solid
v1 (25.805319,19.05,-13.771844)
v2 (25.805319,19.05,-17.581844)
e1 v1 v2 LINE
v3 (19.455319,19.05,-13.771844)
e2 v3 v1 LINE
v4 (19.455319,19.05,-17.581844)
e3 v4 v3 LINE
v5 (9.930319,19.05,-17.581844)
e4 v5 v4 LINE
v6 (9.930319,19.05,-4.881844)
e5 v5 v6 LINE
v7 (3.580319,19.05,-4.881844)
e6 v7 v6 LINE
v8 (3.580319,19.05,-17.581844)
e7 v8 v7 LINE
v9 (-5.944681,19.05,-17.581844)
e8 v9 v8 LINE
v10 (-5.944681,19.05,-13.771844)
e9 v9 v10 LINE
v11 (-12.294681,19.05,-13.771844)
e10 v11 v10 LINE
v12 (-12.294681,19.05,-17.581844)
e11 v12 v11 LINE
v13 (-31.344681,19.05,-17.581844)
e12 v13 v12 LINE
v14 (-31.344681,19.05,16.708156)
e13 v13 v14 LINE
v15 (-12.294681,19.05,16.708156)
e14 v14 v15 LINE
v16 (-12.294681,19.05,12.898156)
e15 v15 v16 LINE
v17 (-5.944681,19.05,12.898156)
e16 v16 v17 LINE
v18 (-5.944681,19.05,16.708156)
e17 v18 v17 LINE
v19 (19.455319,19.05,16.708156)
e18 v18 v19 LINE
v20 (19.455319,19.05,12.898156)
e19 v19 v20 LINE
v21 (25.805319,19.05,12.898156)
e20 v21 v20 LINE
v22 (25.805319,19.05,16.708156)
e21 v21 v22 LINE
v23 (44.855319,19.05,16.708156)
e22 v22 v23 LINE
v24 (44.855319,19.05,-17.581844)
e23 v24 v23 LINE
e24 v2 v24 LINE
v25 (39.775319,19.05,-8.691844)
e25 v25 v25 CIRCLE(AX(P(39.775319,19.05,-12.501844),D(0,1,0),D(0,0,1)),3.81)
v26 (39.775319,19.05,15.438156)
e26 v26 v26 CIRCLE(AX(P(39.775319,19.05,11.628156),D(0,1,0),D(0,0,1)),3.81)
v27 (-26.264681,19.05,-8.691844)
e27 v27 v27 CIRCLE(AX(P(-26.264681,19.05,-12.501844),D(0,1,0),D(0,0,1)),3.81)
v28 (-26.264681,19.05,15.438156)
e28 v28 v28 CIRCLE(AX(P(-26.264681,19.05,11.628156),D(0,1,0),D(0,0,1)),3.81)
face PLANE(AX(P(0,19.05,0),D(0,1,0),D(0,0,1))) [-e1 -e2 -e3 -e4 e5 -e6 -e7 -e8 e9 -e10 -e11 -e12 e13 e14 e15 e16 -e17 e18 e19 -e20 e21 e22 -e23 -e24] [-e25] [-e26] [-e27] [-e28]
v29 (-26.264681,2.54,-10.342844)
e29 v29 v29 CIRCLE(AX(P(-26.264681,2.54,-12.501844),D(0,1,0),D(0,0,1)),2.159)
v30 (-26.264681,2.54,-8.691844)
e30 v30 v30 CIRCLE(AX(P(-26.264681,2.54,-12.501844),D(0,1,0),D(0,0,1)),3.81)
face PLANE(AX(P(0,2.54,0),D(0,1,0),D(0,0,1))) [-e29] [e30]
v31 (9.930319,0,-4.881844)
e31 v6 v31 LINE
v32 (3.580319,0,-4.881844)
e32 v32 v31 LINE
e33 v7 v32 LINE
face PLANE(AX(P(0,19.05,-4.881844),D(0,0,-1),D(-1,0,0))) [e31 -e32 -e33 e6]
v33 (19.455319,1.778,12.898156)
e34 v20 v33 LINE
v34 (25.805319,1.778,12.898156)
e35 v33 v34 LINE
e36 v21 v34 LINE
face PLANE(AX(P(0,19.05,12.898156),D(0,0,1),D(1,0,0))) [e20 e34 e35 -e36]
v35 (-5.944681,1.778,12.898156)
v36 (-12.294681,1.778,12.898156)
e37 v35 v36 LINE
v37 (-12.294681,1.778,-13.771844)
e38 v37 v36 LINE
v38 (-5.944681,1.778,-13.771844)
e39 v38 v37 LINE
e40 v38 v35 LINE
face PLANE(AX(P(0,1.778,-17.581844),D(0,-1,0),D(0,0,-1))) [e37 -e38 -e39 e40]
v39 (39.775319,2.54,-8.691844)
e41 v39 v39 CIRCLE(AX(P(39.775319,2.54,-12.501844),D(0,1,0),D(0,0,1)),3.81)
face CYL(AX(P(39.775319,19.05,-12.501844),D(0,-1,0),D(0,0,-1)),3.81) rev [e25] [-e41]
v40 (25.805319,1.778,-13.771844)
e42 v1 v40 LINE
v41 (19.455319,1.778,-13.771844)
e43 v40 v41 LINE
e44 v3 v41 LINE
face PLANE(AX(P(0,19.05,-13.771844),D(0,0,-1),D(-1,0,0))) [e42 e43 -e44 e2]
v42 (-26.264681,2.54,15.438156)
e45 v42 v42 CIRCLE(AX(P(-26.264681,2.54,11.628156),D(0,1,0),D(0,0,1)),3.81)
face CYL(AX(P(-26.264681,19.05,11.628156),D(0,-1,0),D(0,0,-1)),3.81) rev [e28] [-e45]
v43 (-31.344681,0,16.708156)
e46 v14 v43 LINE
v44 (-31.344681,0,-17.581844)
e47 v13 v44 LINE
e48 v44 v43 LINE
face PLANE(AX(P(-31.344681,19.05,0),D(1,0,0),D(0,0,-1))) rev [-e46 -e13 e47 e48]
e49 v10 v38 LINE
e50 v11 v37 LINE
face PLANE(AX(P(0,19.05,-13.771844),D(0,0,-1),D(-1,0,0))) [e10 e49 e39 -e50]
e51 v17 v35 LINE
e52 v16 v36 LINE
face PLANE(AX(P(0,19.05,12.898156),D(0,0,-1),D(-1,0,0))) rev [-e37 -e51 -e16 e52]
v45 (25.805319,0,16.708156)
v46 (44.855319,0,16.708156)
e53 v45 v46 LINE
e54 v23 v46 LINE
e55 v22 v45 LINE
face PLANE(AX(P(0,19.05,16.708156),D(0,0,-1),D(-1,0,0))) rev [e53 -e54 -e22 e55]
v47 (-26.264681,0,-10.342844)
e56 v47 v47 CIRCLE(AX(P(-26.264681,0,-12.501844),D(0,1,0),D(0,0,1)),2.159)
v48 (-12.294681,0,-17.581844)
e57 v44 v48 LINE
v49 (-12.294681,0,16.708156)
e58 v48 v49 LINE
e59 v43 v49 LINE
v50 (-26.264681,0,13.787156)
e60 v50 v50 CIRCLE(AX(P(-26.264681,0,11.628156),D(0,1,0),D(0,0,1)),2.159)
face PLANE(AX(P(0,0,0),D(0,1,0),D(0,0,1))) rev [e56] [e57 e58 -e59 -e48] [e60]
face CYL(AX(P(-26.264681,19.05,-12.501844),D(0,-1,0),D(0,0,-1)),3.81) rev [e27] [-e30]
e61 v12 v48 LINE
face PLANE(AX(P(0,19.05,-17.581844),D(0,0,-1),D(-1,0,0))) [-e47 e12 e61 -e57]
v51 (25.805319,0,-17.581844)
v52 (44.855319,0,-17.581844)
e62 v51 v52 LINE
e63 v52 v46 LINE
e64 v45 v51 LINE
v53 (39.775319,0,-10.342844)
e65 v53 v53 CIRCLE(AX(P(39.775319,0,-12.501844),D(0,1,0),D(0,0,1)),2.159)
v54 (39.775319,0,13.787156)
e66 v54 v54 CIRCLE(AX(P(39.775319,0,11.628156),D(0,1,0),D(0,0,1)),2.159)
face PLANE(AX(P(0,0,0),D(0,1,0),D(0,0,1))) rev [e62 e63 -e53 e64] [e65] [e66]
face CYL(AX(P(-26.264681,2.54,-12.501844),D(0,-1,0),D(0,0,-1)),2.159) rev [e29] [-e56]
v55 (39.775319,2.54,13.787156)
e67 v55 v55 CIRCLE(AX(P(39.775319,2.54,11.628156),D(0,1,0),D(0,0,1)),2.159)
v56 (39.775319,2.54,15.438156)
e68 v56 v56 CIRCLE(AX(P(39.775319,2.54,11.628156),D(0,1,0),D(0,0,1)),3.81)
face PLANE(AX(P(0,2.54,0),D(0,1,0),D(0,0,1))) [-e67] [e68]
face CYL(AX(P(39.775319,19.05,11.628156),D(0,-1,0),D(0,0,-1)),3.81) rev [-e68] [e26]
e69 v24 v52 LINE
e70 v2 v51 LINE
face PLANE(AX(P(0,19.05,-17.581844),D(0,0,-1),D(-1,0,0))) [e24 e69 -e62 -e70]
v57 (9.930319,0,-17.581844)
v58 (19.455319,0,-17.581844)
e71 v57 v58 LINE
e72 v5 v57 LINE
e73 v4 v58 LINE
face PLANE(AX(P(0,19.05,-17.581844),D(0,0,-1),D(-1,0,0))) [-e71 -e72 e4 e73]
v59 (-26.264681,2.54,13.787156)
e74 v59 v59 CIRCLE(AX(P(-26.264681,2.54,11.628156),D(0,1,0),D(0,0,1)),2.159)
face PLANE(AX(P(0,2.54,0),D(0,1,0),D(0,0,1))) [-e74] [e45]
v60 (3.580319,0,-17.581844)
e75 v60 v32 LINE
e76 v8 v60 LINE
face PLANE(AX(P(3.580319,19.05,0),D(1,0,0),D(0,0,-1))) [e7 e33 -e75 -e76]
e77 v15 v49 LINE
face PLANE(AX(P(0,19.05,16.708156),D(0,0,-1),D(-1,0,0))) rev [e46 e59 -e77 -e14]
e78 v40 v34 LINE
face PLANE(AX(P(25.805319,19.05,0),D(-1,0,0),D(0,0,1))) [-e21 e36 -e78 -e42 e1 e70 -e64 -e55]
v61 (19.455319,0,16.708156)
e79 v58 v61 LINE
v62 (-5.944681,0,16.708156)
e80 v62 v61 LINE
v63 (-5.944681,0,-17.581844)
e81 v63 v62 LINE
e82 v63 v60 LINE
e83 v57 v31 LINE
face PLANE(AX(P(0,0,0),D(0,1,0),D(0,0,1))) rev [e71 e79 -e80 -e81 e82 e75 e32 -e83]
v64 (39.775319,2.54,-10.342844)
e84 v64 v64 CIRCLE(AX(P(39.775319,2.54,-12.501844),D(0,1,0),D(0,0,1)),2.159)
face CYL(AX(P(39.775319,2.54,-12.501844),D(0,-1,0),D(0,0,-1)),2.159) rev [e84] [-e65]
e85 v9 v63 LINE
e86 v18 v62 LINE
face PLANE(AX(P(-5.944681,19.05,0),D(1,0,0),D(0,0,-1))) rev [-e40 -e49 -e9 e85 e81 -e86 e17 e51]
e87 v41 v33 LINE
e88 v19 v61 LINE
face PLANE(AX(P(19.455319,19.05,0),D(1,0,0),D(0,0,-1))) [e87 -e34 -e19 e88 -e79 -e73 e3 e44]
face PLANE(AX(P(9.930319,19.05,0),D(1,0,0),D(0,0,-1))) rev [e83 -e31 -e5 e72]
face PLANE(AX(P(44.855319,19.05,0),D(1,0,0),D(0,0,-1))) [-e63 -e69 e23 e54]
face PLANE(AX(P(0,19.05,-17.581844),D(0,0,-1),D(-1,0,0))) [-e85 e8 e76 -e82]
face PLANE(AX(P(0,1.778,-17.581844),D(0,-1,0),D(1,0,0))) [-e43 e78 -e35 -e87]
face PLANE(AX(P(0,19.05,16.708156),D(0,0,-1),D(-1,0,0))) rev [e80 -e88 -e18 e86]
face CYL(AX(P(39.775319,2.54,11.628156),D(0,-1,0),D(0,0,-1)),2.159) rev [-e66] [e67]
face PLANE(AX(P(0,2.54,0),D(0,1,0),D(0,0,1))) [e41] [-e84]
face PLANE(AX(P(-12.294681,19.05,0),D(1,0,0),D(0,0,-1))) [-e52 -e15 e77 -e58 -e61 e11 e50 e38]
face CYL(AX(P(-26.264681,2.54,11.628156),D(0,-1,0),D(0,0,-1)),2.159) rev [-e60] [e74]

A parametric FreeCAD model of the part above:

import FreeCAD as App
import Part
import Sketcher
Q = App.Units.Quantity


def add_polygon(sketch, points):
    """Adds a closed chain of lines whose ends are joined by coincident constraints."""
    first, n = sketch.GeometryCount, len(points)
    for a, b in zip(points, points[1:] + points[:1]):
        sketch.addGeometry(Part.LineSegment(App.Vector(*a, 0), App.Vector(*b, 0)), False)
    for i in range(n):
        sketch.addConstraint(Sketcher.Constraint("Coincident", first + i, 2, first + (i + 1) % n, 1))

doc = App.newDocument("Part")
body = doc.addObject("PartDesign::Body", "Body")

# Sketch on XZ plane
sketch1 = doc.addObject("Sketcher::SketchObject", "Sketch")
body.addObject(sketch1)
sketch1.AttachmentSupport = (doc.XZ_Plane, [""])
sketch1.MapMode = "FlatFace"
add_polygon(sketch1, [(-12.3, -17.6), (-31.3, -17.6), (-31.3, 16.7), (-12.3, 16.7), (-12.3, 12.9), (-5.9, 12.9), (-5.9, 16.7), (19.5, 16.7), (19.5, 12.9), (25.8, 12.9), (25.8, 16.7), (44.9, 16.7), (44.9, -17.6), (25.8, -17.6), (25.8, -13.8), (19.5, -13.8), (19.5, -17.6), (9.9, -17.6), (9.9, -4.9), (3.6, -4.9), (3.6, -17.6), (-5.9, -17.6), (-5.9, -13.8), (-12.3, -13.8)])  # lines 0-23
sketch1.addGeometry(Part.Circle(App.Vector(-26.3, 11.6, 0), App.Vector(0, 0, 1), 3.8), False)  # 24
sketch1.addGeometry(Part.Circle(App.Vector(39.8, 11.6, 0), App.Vector(0, 0, 1), 3.8), False)  # 25
sketch1.addGeometry(Part.Circle(App.Vector(-26.3, -12.5, 0), App.Vector(0, 0, 1), 3.8), False)  # 26
sketch1.addGeometry(Part.Circle(App.Vector(39.8, -12.5, 0), App.Vector(0, 0, 1), 3.8), False)  # 27
sketch1.addConstraint(Sketcher.Constraint("Horizontal", 0))
sketch1.addConstraint(Sketcher.Constraint("Vertical", 1))
sketch1.addConstraint(Sketcher.Constraint("Horizontal", 2))
sketch1.addConstraint(Sketcher.Constraint("Vertical", 3))
sketch1.addConstraint(Sketcher.Constraint("Horizontal", 4))
sketch1.addConstraint(Sketcher.Constraint("Vertical", 5))
sketch1.addConstraint(Sketcher.Constraint("Horizontal", 6))
sketch1.addConstraint(Sketcher.Constraint("Vertical", 7))
sketch1.addConstraint(Sketcher.Constraint("Horizontal", 8))
sketch1.addConstraint(Sketcher.Constraint("Vertical", 9))
sketch1.addConstraint(Sketcher.Constraint("Horizontal", 10))
sketch1.addConstraint(Sketcher.Constraint("Vertical", 11))
sketch1.addConstraint(Sketcher.Constraint("Horizontal", 12))
sketch1.addConstraint(Sketcher.Constraint("Vertical", 13))
sketch1.addConstraint(Sketcher.Constraint("Horizontal", 14))
sketch1.addConstraint(Sketcher.Constraint("Vertical", 15))
sketch1.addConstraint(Sketcher.Constraint("Horizontal", 16))
sketch1.addConstraint(Sketcher.Constraint("Vertical", 17))
sketch1.addConstraint(Sketcher.Constraint("Horizontal", 18))
sketch1.addConstraint(Sketcher.Constraint("Vertical", 19))
sketch1.addConstraint(Sketcher.Constraint("Horizontal", 20))
sketch1.addConstraint(Sketcher.Constraint("Vertical", 21))
sketch1.addConstraint(Sketcher.Constraint("Horizontal", 22))
sketch1.addConstraint(Sketcher.Constraint("Vertical", 23))
sketch1.addConstraint(Sketcher.Constraint("Equal", 24, 25))
sketch1.addConstraint(Sketcher.Constraint("Equal", 25, 26))
sketch1.addConstraint(Sketcher.Constraint("Equal", 26, 27))
sketch1.addConstraint(Sketcher.Constraint("Horizontal", 24, 3, 25, 3))
sketch1.addConstraint(Sketcher.Constraint("Horizontal", 26, 3, 27, 3))
sketch1.addConstraint(Sketcher.Constraint("Horizontal", 2, 2, 5, 2))
sketch1.addConstraint(Sketcher.Constraint("Horizontal", 4, 2, 7, 2))
sketch1.addConstraint(Sketcher.Constraint("Horizontal", 6, 2, 9, 2))
sketch1.addConstraint(Sketcher.Constraint("Horizontal", 0, 2, 11, 2))
sketch1.addConstraint(Sketcher.Constraint("Horizontal", 12, 2, 15, 2))
sketch1.addConstraint(Sketcher.Constraint("Horizontal", 16, 2, 19, 2))
sketch1.addConstraint(Sketcher.Constraint("Horizontal", 14, 2, 21, 2))
sketch1.addConstraint(Sketcher.Constraint("Vertical", 24, 3, 26, 3))
sketch1.addConstraint(Sketcher.Constraint("Vertical", 25, 3, 27, 3))
sketch1.addConstraint(Sketcher.Constraint("Vertical", 9, 2, 12, 2))
sketch1.addConstraint(Sketcher.Constraint("Vertical", 7, 2, 14, 2))
sketch1.addConstraint(Sketcher.Constraint("Vertical", 5, 2, 20, 2))
sketch1.addConstraint(Sketcher.Constraint("Vertical", 3, 2, 22, 2))
sketch1.addConstraint(Sketcher.Constraint("Equal", 4, 8))
sketch1.addConstraint(Sketcher.Constraint("Equal", 2, 10))
sketch1.addConstraint(Sketcher.Constraint("Equal", 14, 18))
sketch1.addConstraint(Sketcher.Constraint("Equal", 16, 20))
sketch1.addConstraint(Sketcher.Constraint("Equal", 9, 13))
sketch1.addConstraint(Sketcher.Constraint("Diameter", 24, Q("0.3 in")))
sketch1.addConstraint(Sketcher.Constraint("DistanceX", 6, 1, 6, 2, Q("1 in")))
sketch1.addConstraint(Sketcher.Constraint("DistanceY", 17, 1, 17, 2, Q("0.5 in")))
sketch1.addConstraint(Sketcher.Constraint("DistanceY", 26, 3, 3, 2, Q("1 in")))
sketch1.addConstraint(Sketcher.Constraint("DistanceX", 1, 2, 4, 2, Q("1 in")))
sketch1.addConstraint(Sketcher.Constraint("DistanceX", 0, 2, 0, 1, Q("0.75 in")))
sketch1.addConstraint(Sketcher.Constraint("DistanceY", 1, 1, 1, 2, Q("1.35 in")))
sketch1.addConstraint(Sketcher.Constraint("DistanceY", 3, 2, 3, 1, Q("0.15 in")))
sketch1.addConstraint(Sketcher.Constraint("DistanceX", 24, 3, 25, 3, Q("2.6 in")))
sketch1.addConstraint(Sketcher.Constraint("DistanceX", 0, 2, 26, 3, Q("0.2 in")))
sketch1.addConstraint(Sketcher.Constraint("DistanceY", 24, 3, 1, 2, Q("0.2 in")))
sketch1.addConstraint(Sketcher.Constraint("DistanceX", 24, 3, -1, 1, 26.264681))
sketch1.addConstraint(Sketcher.Constraint("DistanceY", -1, 1, 24, 3, 11.628156))
pad1 = doc.addObject("PartDesign::Pad", "Pad")
body.addObject(pad1)
pad1.Profile = sketch1
pad1.Length = Q("0.75 in")
pad1.Reversed = True

# Sketch on XZ plane
sketch2 = doc.addObject("Sketcher::SketchObject", "Sketch001")
body.addObject(sketch2)
sketch2.AttachmentSupport = (doc.XZ_Plane, [""])
sketch2.MapMode = "FlatFace"
sketch2.addGeometry(Part.Circle(App.Vector(-26.3, -12.5, 0), App.Vector(0, 0, 1), 3.8), False)
sketch2.addGeometry(Part.Circle(App.Vector(-26.3, -12.5, 0), App.Vector(0, 0, 1), 2.2), False)
sketch2.addGeometry(Part.Circle(App.Vector(-26.3, 11.6, 0), App.Vector(0, 0, 1), 3.8), False)
sketch2.addGeometry(Part.Circle(App.Vector(-26.3, 11.6, 0), App.Vector(0, 0, 1), 2.2), False)
sketch2.addGeometry(Part.Circle(App.Vector(39.8, -12.5, 0), App.Vector(0, 0, 1), 3.8), False)
sketch2.addGeometry(Part.Circle(App.Vector(39.8, -12.5, 0), App.Vector(0, 0, 1), 2.2), False)
sketch2.addGeometry(Part.Circle(App.Vector(39.8, 11.6, 0), App.Vector(0, 0, 1), 3.8), False)
sketch2.addGeometry(Part.Circle(App.Vector(39.8, 11.6, 0), App.Vector(0, 0, 1), 2.2), False)
sketch2.addConstraint(Sketcher.Constraint("Coincident", 1, 3, 0, 3))
sketch2.addConstraint(Sketcher.Constraint("Coincident", 3, 3, 2, 3))
sketch2.addConstraint(Sketcher.Constraint("Coincident", 5, 3, 4, 3))
sketch2.addConstraint(Sketcher.Constraint("Coincident", 7, 3, 6, 3))
sketch2.addConstraint(Sketcher.Constraint("Equal", 0, 2))
sketch2.addConstraint(Sketcher.Constraint("Equal", 1, 3))
sketch2.addConstraint(Sketcher.Constraint("Equal", 2, 4))
sketch2.addConstraint(Sketcher.Constraint("Equal", 3, 5))
sketch2.addConstraint(Sketcher.Constraint("Equal", 4, 6))
sketch2.addConstraint(Sketcher.Constraint("Equal", 5, 7))
sketch2.addConstraint(Sketcher.Constraint("Horizontal", 1, 3, 4, 3))
sketch2.addConstraint(Sketcher.Constraint("Horizontal", 3, 3, 6, 3))
sketch2.addConstraint(Sketcher.Constraint("Vertical", 1, 3, 2, 3))
sketch2.addConstraint(Sketcher.Constraint("Vertical", 5, 3, 6, 3))
sketch2.addConstraint(Sketcher.Constraint("Diameter", 0, Q("0.3 in")))
sketch2.addConstraint(Sketcher.Constraint("Diameter", 1, Q("0.17 in")))
sketch2.addConstraint(Sketcher.Constraint("DistanceX", 0, 3, 4, 3, Q("2.6 in")))
sketch2.addConstraint(Sketcher.Constraint("DistanceY", 0, 3, 2, 3, Q("0.95 in")))
sketch2.addConstraint(Sketcher.Constraint("DistanceX", 0, 3, -1, 1, 26.264681))
sketch2.addConstraint(Sketcher.Constraint("DistanceY", 0, 3, -1, 1, 12.501844))
pad2 = doc.addObject("PartDesign::Pad", "Pad001")
body.addObject(pad2)
pad2.Profile = sketch2
pad2.Length = Q("0.1 in")
pad2.Reversed = True

# Sketch on XY plane
sketch3 = doc.addObject("Sketcher::SketchObject", "Sketch002")
body.addObject(sketch3)
sketch3.AttachmentSupport = (doc.XY_Plane, [""])
sketch3.MapMode = "FlatFace"
sketch3.AttachmentOffset = App.Placement(App.Vector(0, 0, 16.708156), App.Rotation())
add_polygon(sketch3, [(-12.3, 1.8), (-12.3, 0), (-5.9, 0), (-5.9, 1.8)])  # lines 0-3
add_polygon(sketch3, [(19.5, 1.8), (19.5, 0), (25.8, 0), (25.8, 1.8)])  # lines 4-7
sketch3.addConstraint(Sketcher.Constraint("Vertical", 0))
sketch3.addConstraint(Sketcher.Constraint("Horizontal", 1))
sketch3.addConstraint(Sketcher.Constraint("Vertical", 2))
sketch3.addConstraint(Sketcher.Constraint("Horizontal", 3))
sketch3.addConstraint(Sketcher.Constraint("Vertical", 4))
sketch3.addConstraint(Sketcher.Constraint("Horizontal", 5))
sketch3.addConstraint(Sketcher.Constraint("Vertical", 6))
sketch3.addConstraint(Sketcher.Constraint("Horizontal", 7))
sketch3.addConstraint(Sketcher.Constraint("PointOnObject", 0, 2, -1))
sketch3.addConstraint(Sketcher.Constraint("PointOnObject", 4, 2, -1))
sketch3.addConstraint(Sketcher.Constraint("Horizontal", 3, 2, 6, 2))
sketch3.addConstraint(Sketcher.Constraint("Equal", 3, 5))
sketch3.addConstraint(Sketcher.Constraint("DistanceX", 1, 2, 4, 2, Q("1 in")))
sketch3.addConstraint(Sketcher.Constraint("DistanceX", 1, 1, 1, 2, Q("0.25 in")))
sketch3.addConstraint(Sketcher.Constraint("DistanceY", 0, 2, 0, 1, Q("0.07 in")))
sketch3.addConstraint(Sketcher.Constraint("DistanceX", 0, 2, -1, 1, 12.294681))
pocket1 = doc.addObject("PartDesign::Pocket", "Pocket")
body.addObject(pocket1)
pocket1.Profile = sketch3
pocket1.Type = "ThroughAll"

doc.recompute()
